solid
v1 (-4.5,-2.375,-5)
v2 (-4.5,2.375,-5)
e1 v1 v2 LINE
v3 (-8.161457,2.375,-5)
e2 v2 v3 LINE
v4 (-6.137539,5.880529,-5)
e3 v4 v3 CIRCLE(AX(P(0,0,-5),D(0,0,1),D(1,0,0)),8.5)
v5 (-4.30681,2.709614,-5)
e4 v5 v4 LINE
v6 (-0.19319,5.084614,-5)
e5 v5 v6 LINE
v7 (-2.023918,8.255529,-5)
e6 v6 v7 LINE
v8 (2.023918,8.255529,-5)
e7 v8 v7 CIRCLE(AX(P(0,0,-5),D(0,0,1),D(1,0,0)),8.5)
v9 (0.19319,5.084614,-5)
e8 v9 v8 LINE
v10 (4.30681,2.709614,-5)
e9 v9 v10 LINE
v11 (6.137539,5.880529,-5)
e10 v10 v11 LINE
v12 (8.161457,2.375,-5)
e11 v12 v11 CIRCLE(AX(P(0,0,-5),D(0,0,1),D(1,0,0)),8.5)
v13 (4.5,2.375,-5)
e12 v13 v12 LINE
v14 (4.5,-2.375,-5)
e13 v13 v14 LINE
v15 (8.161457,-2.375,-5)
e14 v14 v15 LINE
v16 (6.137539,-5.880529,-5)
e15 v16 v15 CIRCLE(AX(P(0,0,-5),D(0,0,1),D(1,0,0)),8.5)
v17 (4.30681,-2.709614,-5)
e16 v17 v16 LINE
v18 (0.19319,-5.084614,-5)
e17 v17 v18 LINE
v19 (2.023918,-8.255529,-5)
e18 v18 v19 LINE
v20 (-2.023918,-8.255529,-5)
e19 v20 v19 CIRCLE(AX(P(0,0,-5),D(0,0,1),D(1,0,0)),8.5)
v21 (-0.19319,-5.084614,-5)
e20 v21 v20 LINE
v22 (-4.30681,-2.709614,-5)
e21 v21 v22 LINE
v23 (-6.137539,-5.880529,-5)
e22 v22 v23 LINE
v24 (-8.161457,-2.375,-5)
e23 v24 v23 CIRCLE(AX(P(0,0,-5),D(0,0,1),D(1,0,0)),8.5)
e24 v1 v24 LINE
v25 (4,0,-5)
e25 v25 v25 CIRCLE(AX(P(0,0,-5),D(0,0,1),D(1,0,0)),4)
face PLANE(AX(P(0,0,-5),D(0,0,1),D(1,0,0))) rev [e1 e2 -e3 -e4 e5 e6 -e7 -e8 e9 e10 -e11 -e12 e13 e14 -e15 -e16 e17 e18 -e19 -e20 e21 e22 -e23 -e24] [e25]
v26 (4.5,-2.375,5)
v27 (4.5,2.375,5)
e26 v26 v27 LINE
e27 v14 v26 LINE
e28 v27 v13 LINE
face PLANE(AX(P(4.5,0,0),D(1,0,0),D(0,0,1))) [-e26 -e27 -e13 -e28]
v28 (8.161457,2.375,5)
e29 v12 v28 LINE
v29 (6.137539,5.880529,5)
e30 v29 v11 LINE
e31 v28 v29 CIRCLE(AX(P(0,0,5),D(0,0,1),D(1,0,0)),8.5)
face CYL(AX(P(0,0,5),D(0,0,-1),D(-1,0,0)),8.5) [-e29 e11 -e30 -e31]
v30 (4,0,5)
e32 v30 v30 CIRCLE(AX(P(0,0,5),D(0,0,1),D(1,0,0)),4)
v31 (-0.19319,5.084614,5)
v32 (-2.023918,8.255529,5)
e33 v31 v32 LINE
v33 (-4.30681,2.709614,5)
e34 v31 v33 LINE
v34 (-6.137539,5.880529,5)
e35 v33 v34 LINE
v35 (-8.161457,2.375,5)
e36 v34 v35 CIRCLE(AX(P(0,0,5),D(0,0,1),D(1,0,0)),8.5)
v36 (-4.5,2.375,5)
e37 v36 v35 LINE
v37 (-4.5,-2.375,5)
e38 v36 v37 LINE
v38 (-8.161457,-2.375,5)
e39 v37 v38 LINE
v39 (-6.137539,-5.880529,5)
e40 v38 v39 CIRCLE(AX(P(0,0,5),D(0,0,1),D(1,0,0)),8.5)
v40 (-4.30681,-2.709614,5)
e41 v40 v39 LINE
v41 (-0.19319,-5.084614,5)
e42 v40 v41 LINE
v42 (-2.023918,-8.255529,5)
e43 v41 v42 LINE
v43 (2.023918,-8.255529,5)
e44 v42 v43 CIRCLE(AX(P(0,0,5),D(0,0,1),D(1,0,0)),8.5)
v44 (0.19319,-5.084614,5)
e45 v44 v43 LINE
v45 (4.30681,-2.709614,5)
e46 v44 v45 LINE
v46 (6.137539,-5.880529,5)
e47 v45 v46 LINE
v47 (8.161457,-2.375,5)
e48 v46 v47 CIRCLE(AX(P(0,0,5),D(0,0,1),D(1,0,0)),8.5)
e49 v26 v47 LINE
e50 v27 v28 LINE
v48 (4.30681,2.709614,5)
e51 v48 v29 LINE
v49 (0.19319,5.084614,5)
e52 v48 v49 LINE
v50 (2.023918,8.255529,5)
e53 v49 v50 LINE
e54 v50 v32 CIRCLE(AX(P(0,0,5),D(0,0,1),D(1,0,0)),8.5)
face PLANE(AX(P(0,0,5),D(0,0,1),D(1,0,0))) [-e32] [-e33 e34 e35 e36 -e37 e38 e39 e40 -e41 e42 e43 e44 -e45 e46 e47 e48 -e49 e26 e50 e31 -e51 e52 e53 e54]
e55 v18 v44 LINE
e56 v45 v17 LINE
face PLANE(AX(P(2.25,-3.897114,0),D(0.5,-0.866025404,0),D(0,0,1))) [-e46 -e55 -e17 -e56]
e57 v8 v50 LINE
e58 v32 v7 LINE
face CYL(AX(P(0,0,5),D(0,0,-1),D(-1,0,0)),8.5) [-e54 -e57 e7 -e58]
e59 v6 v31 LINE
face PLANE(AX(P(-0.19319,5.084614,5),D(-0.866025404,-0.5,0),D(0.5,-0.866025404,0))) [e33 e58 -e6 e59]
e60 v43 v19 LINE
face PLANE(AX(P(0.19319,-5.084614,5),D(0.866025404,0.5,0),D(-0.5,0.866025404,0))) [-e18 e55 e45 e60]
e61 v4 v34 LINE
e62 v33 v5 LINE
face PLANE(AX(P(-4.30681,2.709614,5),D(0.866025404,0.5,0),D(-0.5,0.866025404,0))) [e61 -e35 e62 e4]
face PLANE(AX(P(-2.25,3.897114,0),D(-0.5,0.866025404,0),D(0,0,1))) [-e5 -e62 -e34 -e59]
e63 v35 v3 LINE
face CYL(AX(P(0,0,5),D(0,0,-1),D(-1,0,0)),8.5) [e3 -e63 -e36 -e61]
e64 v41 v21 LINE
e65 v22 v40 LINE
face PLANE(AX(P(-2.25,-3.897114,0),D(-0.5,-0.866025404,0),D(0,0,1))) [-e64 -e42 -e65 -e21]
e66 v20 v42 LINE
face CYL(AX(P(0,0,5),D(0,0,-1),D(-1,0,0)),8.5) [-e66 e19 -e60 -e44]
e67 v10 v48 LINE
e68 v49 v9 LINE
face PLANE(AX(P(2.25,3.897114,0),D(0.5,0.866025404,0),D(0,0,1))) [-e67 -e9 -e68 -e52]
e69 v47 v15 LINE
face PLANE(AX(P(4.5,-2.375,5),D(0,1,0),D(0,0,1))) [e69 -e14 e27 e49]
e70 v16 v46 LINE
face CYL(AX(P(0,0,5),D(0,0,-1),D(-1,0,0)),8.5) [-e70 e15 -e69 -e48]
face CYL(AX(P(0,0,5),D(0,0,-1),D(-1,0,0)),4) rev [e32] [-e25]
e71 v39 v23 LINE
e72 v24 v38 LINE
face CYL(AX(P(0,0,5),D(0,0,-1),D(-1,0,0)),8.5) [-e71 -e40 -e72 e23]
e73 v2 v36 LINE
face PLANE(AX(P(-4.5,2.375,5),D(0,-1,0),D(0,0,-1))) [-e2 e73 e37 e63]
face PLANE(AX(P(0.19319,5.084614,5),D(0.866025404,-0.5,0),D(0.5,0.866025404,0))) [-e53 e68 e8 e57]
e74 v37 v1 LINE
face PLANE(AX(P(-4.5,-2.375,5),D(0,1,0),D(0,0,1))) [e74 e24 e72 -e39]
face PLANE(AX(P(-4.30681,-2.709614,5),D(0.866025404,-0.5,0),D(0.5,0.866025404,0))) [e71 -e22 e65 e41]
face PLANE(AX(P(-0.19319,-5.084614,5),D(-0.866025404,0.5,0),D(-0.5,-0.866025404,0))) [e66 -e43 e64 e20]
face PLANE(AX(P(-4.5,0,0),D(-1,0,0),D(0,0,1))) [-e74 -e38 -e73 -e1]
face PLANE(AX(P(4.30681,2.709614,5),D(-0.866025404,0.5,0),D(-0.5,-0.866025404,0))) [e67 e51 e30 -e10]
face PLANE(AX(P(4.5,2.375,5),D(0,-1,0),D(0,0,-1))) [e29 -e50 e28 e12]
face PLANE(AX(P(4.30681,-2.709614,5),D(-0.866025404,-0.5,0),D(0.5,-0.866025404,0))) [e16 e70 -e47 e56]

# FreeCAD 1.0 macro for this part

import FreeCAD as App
import Part
import Sketcher

V = App.Vector

doc = App.newDocument("Part")
body = doc.addObject("PartDesign::Body", "Body")

sketch1 = body.newObject("Sketcher::SketchObject", "Sketch")
sketch1.AttachmentSupport = (doc.getObject("XY_Plane"), [""])
sketch1.MapMode = "FlatFace"
sketch1.addGeometry(Part.Circle(V(0, 0, 0), V(0, 0, 1), 8.5), False)
sketch1.addGeometry(Part.Circle(V(0, 0, 0), V(0, 0, 1), 4), False)
sketch1.addConstraint(Sketcher.Constraint("Coincident", 0, 3, -1, 1))
sketch1.addConstraint(Sketcher.Constraint("Coincident", 1, 3, -1, 1))
sketch1.addConstraint(Sketcher.Constraint("Diameter", 0, 17.0))
sketch1.addConstraint(Sketcher.Constraint("Diameter", 1, 8.0))
pad1 = body.newObject("PartDesign::Pad", "Pad")
pad1.Profile = sketch1
pad1.Length = 10
pad1.Midplane = True

sketch2 = body.newObject("Sketcher::SketchObject", "Sketch001")
sketch2.AttachmentSupport = (doc.getObject("YZ_Plane"), [""])
sketch2.MapMode = "FlatFace"
sketch2.AttachmentOffset = App.Placement(V(0, 0, -8.5), App.Rotation())
sketch2.addGeometry(Part.LineSegment(V(2.375, -5, 0), V(2.375, 5, 0)), False)
sketch2.addGeometry(Part.LineSegment(V(2.375, 5, 0), V(-2.375, 5, 0)), False)
sketch2.addGeometry(Part.LineSegment(V(-2.375, 5, 0), V(-2.375, -5, 0)), False)
sketch2.addGeometry(Part.LineSegment(V(-2.375, -5, 0), V(2.375, -5, 0)), False)
sketch2.addConstraint(Sketcher.Constraint("Coincident", 0, 2, 1, 1))
sketch2.addConstraint(Sketcher.Constraint("Coincident", 1, 2, 2, 1))
sketch2.addConstraint(Sketcher.Constraint("Coincident", 2, 2, 3, 1))
sketch2.addConstraint(Sketcher.Constraint("Coincident", 3, 2, 0, 1))
sketch2.addConstraint(Sketcher.Constraint("Vertical", 0))
sketch2.addConstraint(Sketcher.Constraint("Horizontal", 1))
sketch2.addConstraint(Sketcher.Constraint("Vertical", 2))
sketch2.addConstraint(Sketcher.Constraint("Horizontal", 3))
sketch2.addConstraint(Sketcher.Constraint("Symmetric", 0, 2, 2, 2, -1, 1))
sketch2.addConstraint(Sketcher.Constraint("DistanceY", 0, 1, 0, 2, 10.0))
sketch2.addConstraint(Sketcher.Constraint("DistanceX", 1, 2, 1, 1, 4.75))
pocket1 = body.newObject("PartDesign::Pocket", "Pocket")
pocket1.Profile = sketch2
pocket1.Length = 4
pocket1.Reversed = True
doc.recompute()

polarpattern = body.newObject("PartDesign::PolarPattern", "PolarPattern")
polarpattern.Originals = [pocket1]
polarpattern.Axis = (doc.getObject("Z_Axis"), [""])
polarpattern.Angle = 360
polarpattern.Occurrences = 6
body.Tip = polarpattern

doc.recompute()
